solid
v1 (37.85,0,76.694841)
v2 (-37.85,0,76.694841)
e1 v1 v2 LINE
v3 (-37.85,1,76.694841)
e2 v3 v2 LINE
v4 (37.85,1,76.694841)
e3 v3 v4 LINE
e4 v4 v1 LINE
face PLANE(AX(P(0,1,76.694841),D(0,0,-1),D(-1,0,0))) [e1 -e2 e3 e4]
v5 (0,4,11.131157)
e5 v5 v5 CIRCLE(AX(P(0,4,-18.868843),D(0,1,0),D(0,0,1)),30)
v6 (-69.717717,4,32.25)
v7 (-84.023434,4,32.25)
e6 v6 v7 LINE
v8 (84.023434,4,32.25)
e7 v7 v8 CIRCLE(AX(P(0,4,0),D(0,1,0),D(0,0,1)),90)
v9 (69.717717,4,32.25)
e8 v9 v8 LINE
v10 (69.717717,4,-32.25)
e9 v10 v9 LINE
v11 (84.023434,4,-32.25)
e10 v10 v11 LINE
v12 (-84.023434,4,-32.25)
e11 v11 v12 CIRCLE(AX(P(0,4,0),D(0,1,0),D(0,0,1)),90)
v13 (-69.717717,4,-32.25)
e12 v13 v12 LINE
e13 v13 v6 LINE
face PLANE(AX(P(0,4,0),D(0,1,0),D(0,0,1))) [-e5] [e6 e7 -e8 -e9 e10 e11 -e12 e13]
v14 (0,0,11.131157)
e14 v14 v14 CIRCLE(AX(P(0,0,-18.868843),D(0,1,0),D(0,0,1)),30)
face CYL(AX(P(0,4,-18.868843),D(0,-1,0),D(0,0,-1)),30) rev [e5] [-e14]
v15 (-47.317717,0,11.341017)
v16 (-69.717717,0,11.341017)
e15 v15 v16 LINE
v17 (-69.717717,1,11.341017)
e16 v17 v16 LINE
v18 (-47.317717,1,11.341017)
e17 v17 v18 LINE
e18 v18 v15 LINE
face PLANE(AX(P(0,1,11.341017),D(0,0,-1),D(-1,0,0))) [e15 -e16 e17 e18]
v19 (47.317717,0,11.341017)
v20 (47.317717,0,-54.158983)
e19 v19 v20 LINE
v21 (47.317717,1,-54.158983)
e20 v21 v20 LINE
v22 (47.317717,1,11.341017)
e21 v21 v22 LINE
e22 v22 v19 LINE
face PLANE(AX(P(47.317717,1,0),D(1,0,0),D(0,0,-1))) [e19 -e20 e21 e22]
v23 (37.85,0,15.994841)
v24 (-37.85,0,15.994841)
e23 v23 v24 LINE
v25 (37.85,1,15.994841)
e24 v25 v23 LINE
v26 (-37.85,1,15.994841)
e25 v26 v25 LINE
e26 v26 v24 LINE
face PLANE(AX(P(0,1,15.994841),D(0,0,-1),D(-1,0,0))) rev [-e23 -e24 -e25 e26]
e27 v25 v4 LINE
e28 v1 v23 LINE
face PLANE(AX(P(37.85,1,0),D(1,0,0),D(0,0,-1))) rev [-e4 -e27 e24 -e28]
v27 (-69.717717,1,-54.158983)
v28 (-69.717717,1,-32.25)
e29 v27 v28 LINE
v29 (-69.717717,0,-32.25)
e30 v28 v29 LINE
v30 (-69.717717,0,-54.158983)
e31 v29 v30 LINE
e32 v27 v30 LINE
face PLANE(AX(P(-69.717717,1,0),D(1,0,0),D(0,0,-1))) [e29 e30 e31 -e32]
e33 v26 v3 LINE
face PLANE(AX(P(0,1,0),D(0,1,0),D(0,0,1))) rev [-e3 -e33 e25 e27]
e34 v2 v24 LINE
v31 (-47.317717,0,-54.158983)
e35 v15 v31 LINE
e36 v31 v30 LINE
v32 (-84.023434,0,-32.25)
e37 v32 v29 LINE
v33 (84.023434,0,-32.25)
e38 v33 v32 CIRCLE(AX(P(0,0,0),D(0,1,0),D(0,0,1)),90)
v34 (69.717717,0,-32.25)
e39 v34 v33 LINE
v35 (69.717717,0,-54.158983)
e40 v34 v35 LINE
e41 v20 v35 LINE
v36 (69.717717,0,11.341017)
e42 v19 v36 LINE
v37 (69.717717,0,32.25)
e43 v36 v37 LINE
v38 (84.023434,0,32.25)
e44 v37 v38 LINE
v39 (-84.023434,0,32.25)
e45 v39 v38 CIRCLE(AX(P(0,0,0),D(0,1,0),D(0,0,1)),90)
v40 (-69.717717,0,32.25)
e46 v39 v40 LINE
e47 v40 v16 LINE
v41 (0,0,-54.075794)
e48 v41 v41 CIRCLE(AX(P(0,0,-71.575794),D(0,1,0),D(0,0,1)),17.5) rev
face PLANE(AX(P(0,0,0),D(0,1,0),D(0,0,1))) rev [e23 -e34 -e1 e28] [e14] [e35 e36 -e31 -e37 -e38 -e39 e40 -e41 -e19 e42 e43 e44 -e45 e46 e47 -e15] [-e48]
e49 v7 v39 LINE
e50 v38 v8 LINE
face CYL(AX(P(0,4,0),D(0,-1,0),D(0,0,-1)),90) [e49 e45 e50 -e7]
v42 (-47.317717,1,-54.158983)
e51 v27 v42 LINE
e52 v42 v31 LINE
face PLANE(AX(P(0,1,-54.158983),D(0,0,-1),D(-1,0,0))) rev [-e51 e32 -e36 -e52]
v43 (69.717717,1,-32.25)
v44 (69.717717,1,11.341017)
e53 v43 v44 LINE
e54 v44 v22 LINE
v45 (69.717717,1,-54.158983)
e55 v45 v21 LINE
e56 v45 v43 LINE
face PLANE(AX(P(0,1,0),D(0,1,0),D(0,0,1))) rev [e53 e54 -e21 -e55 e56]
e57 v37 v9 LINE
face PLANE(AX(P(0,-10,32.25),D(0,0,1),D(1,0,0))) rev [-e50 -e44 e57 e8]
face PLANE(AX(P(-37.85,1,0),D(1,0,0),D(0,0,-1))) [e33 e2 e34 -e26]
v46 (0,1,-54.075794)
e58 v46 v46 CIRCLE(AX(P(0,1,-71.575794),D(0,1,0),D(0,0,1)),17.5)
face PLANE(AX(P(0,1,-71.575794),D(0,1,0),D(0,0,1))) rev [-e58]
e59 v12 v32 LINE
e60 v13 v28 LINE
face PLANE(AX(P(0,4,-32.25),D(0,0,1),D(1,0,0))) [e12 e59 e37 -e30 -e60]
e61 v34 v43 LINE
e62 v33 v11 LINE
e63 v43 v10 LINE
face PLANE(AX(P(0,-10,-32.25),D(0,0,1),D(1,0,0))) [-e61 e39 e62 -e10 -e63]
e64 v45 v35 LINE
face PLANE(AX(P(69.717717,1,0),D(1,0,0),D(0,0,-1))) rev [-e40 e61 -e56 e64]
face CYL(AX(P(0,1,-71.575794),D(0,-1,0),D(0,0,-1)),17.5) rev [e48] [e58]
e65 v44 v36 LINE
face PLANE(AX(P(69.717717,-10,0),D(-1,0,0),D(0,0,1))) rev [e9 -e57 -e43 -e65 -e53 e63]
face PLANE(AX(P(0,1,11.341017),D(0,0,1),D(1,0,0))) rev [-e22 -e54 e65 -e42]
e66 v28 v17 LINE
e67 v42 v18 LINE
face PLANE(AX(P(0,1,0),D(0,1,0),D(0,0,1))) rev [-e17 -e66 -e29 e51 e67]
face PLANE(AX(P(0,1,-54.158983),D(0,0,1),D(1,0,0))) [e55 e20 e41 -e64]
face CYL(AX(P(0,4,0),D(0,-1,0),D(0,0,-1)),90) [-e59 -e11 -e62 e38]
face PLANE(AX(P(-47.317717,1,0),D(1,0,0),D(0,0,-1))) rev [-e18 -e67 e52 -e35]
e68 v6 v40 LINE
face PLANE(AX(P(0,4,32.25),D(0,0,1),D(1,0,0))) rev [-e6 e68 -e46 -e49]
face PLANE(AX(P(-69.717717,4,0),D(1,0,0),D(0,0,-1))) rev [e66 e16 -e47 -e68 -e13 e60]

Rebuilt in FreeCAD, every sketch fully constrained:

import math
import FreeCAD as App
import Part
import Sketcher

V = App.Vector
Q = App.Units.Quantity

doc = App.newDocument("Part")
body = doc.addObject("PartDesign::Body", "Body")

sketch1 = body.newObject("Sketcher::SketchObject", "Sketch")
sketch1.AttachmentSupport = (doc.getObject("XZ_Plane"), [""])
sketch1.MapMode = "FlatFace"
sketch1.addGeometry(Part.Circle(V(0, 0, 0), V(0, 0, 1), 90), False)
sketch1.addConstraint(Sketcher.Constraint("Coincident", 0, 3, -1, 1))
sketch1.addConstraint(Sketcher.Constraint("Diameter", 0, Q("180 mm")))
pad1 = body.newObject("PartDesign::Pad", "Pad")
pad1.Profile = sketch1
pad1.Length = 4
pad1.Reversed = True

sketch2 = body.newObject("Sketcher::SketchObject", "Sketch001")
sketch2.AttachmentSupport = (doc.getObject("XZ_Plane"), [""])
sketch2.MapMode = "FlatFace"
sketch2.addGeometry(Part.LineSegment(V(-70, -32, 0), V(-84, -32, 0)), False)
sketch2.addGeometry(Part.ArcOfCircle(Part.Circle(V(0, 0, 0), V(0, 0, 1), 90), math.radians(159), math.radians(201)), False)
sketch2.addGeometry(Part.LineSegment(V(-84, 32, 0), V(-70, 32, 0)), False)
sketch2.addGeometry(Part.LineSegment(V(-70, 32, 0), V(-70, -32, 0)), False)
sketch2.addGeometry(Part.LineSegment(V(84, -32, 0), V(70, -32, 0)), False)
sketch2.addGeometry(Part.LineSegment(V(70, -32, 0), V(70, 32, 0)), False)
sketch2.addGeometry(Part.LineSegment(V(70, 32, 0), V(84, 32, 0)), False)
sketch2.addGeometry(Part.ArcOfCircle(Part.Circle(V(0, 0, 0), V(0, 0, 1), 90), math.radians(0), math.radians(21)), False)
sketch2.addGeometry(Part.ArcOfCircle(Part.Circle(V(0, 0, 0), V(0, 0, 1), 90), math.radians(-21), math.radians(0)), False)
sketch2.addConstraint(Sketcher.Constraint("Coincident", 0, 2, 1, 2))
sketch2.addConstraint(Sketcher.Constraint("Coincident", 1, 1, 2, 1))
sketch2.addConstraint(Sketcher.Constraint("Coincident", 2, 2, 3, 1))
sketch2.addConstraint(Sketcher.Constraint("Coincident", 3, 2, 0, 1))
sketch2.addConstraint(Sketcher.Constraint("Coincident", 4, 2, 5, 1))
sketch2.addConstraint(Sketcher.Constraint("Coincident", 5, 2, 6, 1))
sketch2.addConstraint(Sketcher.Constraint("Coincident", 6, 2, 7, 2))
sketch2.addConstraint(Sketcher.Constraint("Tangent", 7, 1, 8, 2))
sketch2.addConstraint(Sketcher.Constraint("Coincident", 8, 1, 4, 1))
sketch2.addConstraint(Sketcher.Constraint("Horizontal", 0))
sketch2.addConstraint(Sketcher.Constraint("Horizontal", 2))
sketch2.addConstraint(Sketcher.Constraint("Vertical", 3))
sketch2.addConstraint(Sketcher.Constraint("Horizontal", 4))
sketch2.addConstraint(Sketcher.Constraint("Vertical", 5))
sketch2.addConstraint(Sketcher.Constraint("Horizontal", 6))
sketch2.addConstraint(Sketcher.Constraint("Coincident", 1, 3, -1, 1))
sketch2.addConstraint(Sketcher.Constraint("Coincident", 7, 3, -1, 1))
sketch2.addConstraint(Sketcher.Constraint("Equal", 1, 7))
sketch2.addConstraint(Sketcher.Constraint("Equal", 7, 8))
sketch2.addConstraint(Sketcher.Constraint("Symmetric", 2, 2, 4, 2, -1, 1))
sketch2.addConstraint(Sketcher.Constraint("PointOnObject", 7, 1, -1))
sketch2.addConstraint(Sketcher.Constraint("Horizontal", 3, 2, 4, 2))
sketch2.addConstraint(Sketcher.Constraint("Horizontal", 2, 2, 5, 2))
sketch2.addConstraint(Sketcher.Constraint("Radius", 1, Q("90 mm")))
sketch2.addConstraint(Sketcher.Constraint("DistanceY", 3, 2, 3, 1, Q("64.5 mm")))
sketch2.addConstraint(Sketcher.Constraint("DistanceX", 0, 2, 0, 1, Q("14.305717 mm")))
pocket1 = body.newObject("PartDesign::Pocket", "Pocket")
pocket1.Profile = sketch2
pocket1.Type = "ThroughAll"
pocket1.Midplane = True

sketch3 = body.newObject("Sketcher::SketchObject", "Sketch002")
sketch3.AttachmentSupport = (doc.getObject("XZ_Plane"), [""])
sketch3.MapMode = "FlatFace"
sketch3.addGeometry(Part.LineSegment(V(-70, -54, 0), V(-70, 11, 0)), False)
sketch3.addGeometry(Part.LineSegment(V(-70, 11, 0), V(-47, 11, 0)), False)
sketch3.addGeometry(Part.LineSegment(V(-47, 11, 0), V(-47, -54, 0)), False)
sketch3.addGeometry(Part.LineSegment(V(-47, -54, 0), V(-70, -54, 0)), False)
sketch3.addGeometry(Part.LineSegment(V(70, 11, 0), V(70, -54, 0)), False)
sketch3.addGeometry(Part.LineSegment(V(70, -54, 0), V(47, -54, 0)), False)
sketch3.addGeometry(Part.LineSegment(V(47, -54, 0), V(47, 11, 0)), False)
sketch3.addGeometry(Part.LineSegment(V(47, 11, 0), V(70, 11, 0)), False)
sketch3.addConstraint(Sketcher.Constraint("Coincident", 0, 2, 1, 1))
sketch3.addConstraint(Sketcher.Constraint("Coincident", 1, 2, 2, 1))
sketch3.addConstraint(Sketcher.Constraint("Coincident", 2, 2, 3, 1))
sketch3.addConstraint(Sketcher.Constraint("Coincident", 3, 2, 0, 1))
sketch3.addConstraint(Sketcher.Constraint("Coincident", 4, 2, 5, 1))
sketch3.addConstraint(Sketcher.Constraint("Coincident", 5, 2, 6, 1))
sketch3.addConstraint(Sketcher.Constraint("Coincident", 6, 2, 7, 1))
sketch3.addConstraint(Sketcher.Constraint("Coincident", 7, 2, 4, 1))
sketch3.addConstraint(Sketcher.Constraint("Vertical", 0))
sketch3.addConstraint(Sketcher.Constraint("Horizontal", 1))
sketch3.addConstraint(Sketcher.Constraint("Vertical", 2))
sketch3.addConstraint(Sketcher.Constraint("Horizontal", 3))
sketch3.addConstraint(Sketcher.Constraint("Vertical", 4))
sketch3.addConstraint(Sketcher.Constraint("Horizontal", 5))
sketch3.addConstraint(Sketcher.Constraint("Vertical", 6))
sketch3.addConstraint(Sketcher.Constraint("Horizontal", 7))
sketch3.addConstraint(Sketcher.Constraint("Symmetric", 3, 2, 4, 2, -2))
sketch3.addConstraint(Sketcher.Constraint("Symmetric", 1, 2, 6, 2, -2))
sketch3.addConstraint(Sketcher.Constraint("DistanceX", 1, 1, 1, 2, Q("22.4 mm")))
sketch3.addConstraint(Sketcher.Constraint("DistanceY", 0, 1, 0, 2, Q("65.5 mm")))
sketch3.addConstraint(Sketcher.Constraint("DistanceX", 0, 2, -1, 1, Q("69.717717 mm")))
sketch3.addConstraint(Sketcher.Constraint("DistanceY", -1, 1, 0, 2, Q("11.341017 mm")))
pocket2 = body.newObject("PartDesign::Pocket", "Pocket001")
pocket2.Profile = sketch3
pocket2.Type = "TwoLengths"
pocket2.Length = 1
pocket2.Length2 = 1

sketch4 = body.newObject("Sketcher::SketchObject", "Sketch003")
sketch4.AttachmentSupport = (doc.getObject("XZ_Plane"), [""])
sketch4.MapMode = "FlatFace"
sketch4.addGeometry(Part.Circle(V(0, -19, 0), V(0, 0, 1), 30), False)
sketch4.addConstraint(Sketcher.Constraint("PointOnObject", 0, 3, -2))
sketch4.addConstraint(Sketcher.Constraint("Diameter", 0, Q("60 mm")))
sketch4.addConstraint(Sketcher.Constraint("DistanceY", 0, 3, -1, 1, Q("18.868843 mm")))
pocket3 = body.newObject("PartDesign::Pocket", "Pocket002")
pocket3.Profile = sketch4
pocket3.Type = "ThroughAll"

sketch5 = body.newObject("Sketcher::SketchObject", "Sketch004")
sketch5.AttachmentSupport = (doc.getObject("XZ_Plane"), [""])
sketch5.MapMode = "FlatFace"
sketch5.addGeometry(Part.LineSegment(V(-38, 16, 0), V(-38, 77, 0)), False)
sketch5.addGeometry(Part.LineSegment(V(-38, 77, 0), V(38, 77, 0)), False)
sketch5.addGeometry(Part.LineSegment(V(38, 77, 0), V(38, 16, 0)), False)
sketch5.addGeometry(Part.LineSegment(V(38, 16, 0), V(-38, 16, 0)), False)
sketch5.addConstraint(Sketcher.Constraint("Coincident", 0, 2, 1, 1))
sketch5.addConstraint(Sketcher.Constraint("Coincident", 1, 2, 2, 1))
sketch5.addConstraint(Sketcher.Constraint("Coincident", 2, 2, 3, 1))
sketch5.addConstraint(Sketcher.Constraint("Coincident", 3, 2, 0, 1))
sketch5.addConstraint(Sketcher.Constraint("Vertical", 0))
sketch5.addConstraint(Sketcher.Constraint("Horizontal", 1))
sketch5.addConstraint(Sketcher.Constraint("Vertical", 2))
sketch5.addConstraint(Sketcher.Constraint("Horizontal", 3))
sketch5.addConstraint(Sketcher.Constraint("DistanceX", 1, 1, 1, 2, Q("75.7 mm")))
sketch5.addConstraint(Sketcher.Constraint("DistanceY", 0, 1, 0, 2, Q("60.7 mm")))
sketch5.addConstraint(Sketcher.Constraint("DistanceX", 0, 2, -1, 1, Q("37.85 mm")))
sketch5.addConstraint(Sketcher.Constraint("DistanceY", -1, 1, 0, 2, Q("76.694841 mm")))
pocket4 = body.newObject("PartDesign::Pocket", "Pocket003")
pocket4.Profile = sketch5
pocket4.Type = "TwoLengths"
pocket4.Length = 1
pocket4.Length2 = 1

sketch6 = body.newObject("Sketcher::SketchObject", "Sketch005")
sketch6.AttachmentSupport = (doc.getObject("XZ_Plane"), [""])
sketch6.MapMode = "FlatFace"
sketch6.addGeometry(Part.Circle(V(0, -72, 0), V(0, 0, 1), 18), False)
sketch6.addConstraint(Sketcher.Constraint("PointOnObject", 0, 3, -2))
sketch6.addConstraint(Sketcher.Constraint("Diameter", 0, Q("35 mm")))
sketch6.addConstraint(Sketcher.Constraint("DistanceY", 0, 3, -1, 1, Q("71.575794 mm")))
pocket5 = body.newObject("PartDesign::Pocket", "Pocket004")
pocket5.Profile = sketch6
pocket5.Type = "TwoLengths"
pocket5.Length = 1
pocket5.Length2 = 1

doc.recompute()
